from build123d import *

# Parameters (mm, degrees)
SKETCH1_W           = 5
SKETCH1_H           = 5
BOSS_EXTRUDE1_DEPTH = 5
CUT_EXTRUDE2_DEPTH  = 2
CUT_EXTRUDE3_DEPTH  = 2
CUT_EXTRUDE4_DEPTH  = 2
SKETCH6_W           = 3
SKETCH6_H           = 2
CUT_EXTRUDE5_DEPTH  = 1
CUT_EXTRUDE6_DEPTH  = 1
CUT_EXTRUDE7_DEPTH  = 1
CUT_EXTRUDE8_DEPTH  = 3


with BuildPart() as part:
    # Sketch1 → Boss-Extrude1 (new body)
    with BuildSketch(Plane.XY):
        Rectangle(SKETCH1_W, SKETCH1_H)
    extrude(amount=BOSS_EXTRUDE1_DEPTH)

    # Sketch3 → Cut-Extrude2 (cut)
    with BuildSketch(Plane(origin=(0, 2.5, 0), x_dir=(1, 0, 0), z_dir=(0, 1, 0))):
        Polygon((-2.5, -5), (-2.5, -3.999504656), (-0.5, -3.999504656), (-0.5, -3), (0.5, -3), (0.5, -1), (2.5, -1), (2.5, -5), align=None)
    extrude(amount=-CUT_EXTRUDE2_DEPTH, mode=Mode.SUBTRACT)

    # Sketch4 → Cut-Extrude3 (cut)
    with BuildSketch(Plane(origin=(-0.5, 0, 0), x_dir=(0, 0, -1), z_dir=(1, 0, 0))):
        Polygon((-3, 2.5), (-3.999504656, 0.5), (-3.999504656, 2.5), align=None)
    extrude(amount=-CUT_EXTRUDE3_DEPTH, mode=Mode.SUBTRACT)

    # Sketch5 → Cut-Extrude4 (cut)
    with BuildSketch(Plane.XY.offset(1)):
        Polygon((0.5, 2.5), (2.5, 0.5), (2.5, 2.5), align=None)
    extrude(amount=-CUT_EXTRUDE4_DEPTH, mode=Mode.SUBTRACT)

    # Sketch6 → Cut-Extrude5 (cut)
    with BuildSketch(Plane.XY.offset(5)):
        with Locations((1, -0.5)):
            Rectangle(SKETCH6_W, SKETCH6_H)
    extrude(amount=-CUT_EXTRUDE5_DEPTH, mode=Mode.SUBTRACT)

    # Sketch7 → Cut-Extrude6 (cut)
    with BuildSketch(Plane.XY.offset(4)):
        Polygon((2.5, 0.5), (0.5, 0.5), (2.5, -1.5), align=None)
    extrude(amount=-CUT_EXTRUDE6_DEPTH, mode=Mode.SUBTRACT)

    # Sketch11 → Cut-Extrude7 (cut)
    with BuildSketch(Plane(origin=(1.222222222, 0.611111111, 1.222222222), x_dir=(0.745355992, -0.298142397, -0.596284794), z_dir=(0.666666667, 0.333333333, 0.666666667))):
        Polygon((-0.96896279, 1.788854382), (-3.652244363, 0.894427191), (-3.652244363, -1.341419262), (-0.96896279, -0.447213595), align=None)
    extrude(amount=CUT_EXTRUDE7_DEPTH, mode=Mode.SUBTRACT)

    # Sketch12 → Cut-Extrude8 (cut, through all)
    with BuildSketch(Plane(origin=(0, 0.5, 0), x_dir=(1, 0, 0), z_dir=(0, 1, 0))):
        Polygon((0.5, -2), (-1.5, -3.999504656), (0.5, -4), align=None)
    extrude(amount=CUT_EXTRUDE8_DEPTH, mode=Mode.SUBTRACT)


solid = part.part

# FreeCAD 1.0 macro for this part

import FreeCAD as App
import Part
import Sketcher


def add_polygon(sketch, points):
    """Adds a closed chain of lines whose ends are joined by coincident constraints."""
    first, n = sketch.GeometryCount, len(points)
    for a, b in zip(points, points[1:] + points[:1]):
        sketch.addGeometry(Part.LineSegment(App.Vector(*a, 0), App.Vector(*b, 0)), False)
    for i in range(n):
        sketch.addConstraint(Sketcher.Constraint("Coincident", first + i, 2, first + (i + 1) % n, 1))

doc = App.newDocument("Part")
body = doc.addObject("PartDesign::Body", "Body")
body.AllowCompound = True

sketch1 = doc.addObject("Sketcher::SketchObject", "Sketch")
body.addObject(sketch1)
sketch1.AttachmentSupport = (doc.XY_Plane, [""])
sketch1.MapMode = "FlatFace"
add_polygon(sketch1, [(-2.5, 2.5), (-2.5, -2.5), (2.5, -2.5), (2.5, 2.5)])
sketch1.addConstraint(Sketcher.Constraint("Vertical", 0))
sketch1.addConstraint(Sketcher.Constraint("Horizontal", 1))
sketch1.addConstraint(Sketcher.Constraint("Vertical", 2))
sketch1.addConstraint(Sketcher.Constraint("Horizontal", 3))
sketch1.addConstraint(Sketcher.Constraint("Symmetric", 0, 2, 2, 2, -1, 1))
sketch1.addConstraint(Sketcher.Constraint("Equal", 3, 0))
sketch1.addConstraint(Sketcher.Constraint("DistanceX", 1, 1, 1, 2, 5.0))
pad1 = doc.addObject("PartDesign::Pad", "Pad")
body.addObject(pad1)
pad1.Profile = sketch1
pad1.Length = 5

sketch2 = doc.addObject("Sketcher::SketchObject", "Sketch001")
body.addObject(sketch2)
sketch2.AttachmentSupport = (doc.XZ_Plane, [""])
sketch2.MapMode = "FlatFace"
sketch2.AttachmentOffset = App.Placement(App.Vector(0, 0, -2.5), App.Rotation())
add_polygon(sketch2, [(-2.5, 3.999505), (-2.5, 5), (2.5, 5), (2.5, 1), (0.5, 1), (0.5, 3), (-0.5, 3), (-0.5, 3.999505)])
sketch2.addConstraint(Sketcher.Constraint("Vertical", 0))
sketch2.addConstraint(Sketcher.Constraint("Horizontal", 1))
sketch2.addConstraint(Sketcher.Constraint("Vertical", 2))
sketch2.addConstraint(Sketcher.Constraint("Horizontal", 3))
sketch2.addConstraint(Sketcher.Constraint("Vertical", 4))
sketch2.addConstraint(Sketcher.Constraint("Horizontal", 5))
sketch2.addConstraint(Sketcher.Constraint("Vertical", 6))
sketch2.addConstraint(Sketcher.Constraint("Horizontal", 7))
sketch2.addConstraint(Sketcher.Constraint("Equal", 3, 7))
sketch2.addConstraint(Sketcher.Constraint("Equal", 7, 4))
sketch2.addConstraint(Sketcher.Constraint("DistanceX", 1, 1, 1, 2, 5.0))
sketch2.addConstraint(Sketcher.Constraint("DistanceX", 3, 2, 3, 1, 2.0))
sketch2.addConstraint(Sketcher.Constraint("DistanceY", 2, 2, 2, 1, 4.0))
sketch2.addConstraint(Sketcher.Constraint("DistanceY", -1, 1, 0, 2, 5.0))
sketch2.addConstraint(Sketcher.Constraint("DistanceX", 0, 2, -1, 1, 2.5))
sketch2.addConstraint(Sketcher.Constraint("DistanceY", 0, 1, 0, 2, 1.000495))
pocket1 = doc.addObject("PartDesign::Pocket", "Pocket")
body.addObject(pocket1)
pocket1.Profile = sketch2
pocket1.Length = 2
pocket1.Reversed = True

sketch3 = doc.addObject("Sketcher::SketchObject", "Sketch002")
body.addObject(sketch3)
sketch3.AttachmentSupport = (doc.YZ_Plane, [""])
sketch3.MapMode = "FlatFace"
sketch3.AttachmentOffset = App.Placement(App.Vector(0, 0, -0.5), App.Rotation())
add_polygon(sketch3, [(0.5, 3.999505), (2.5, 3), (2.5, 3.999505)])
sketch3.addConstraint(Sketcher.Constraint("Vertical", 1))
sketch3.addConstraint(Sketcher.Constraint("Horizontal", 2))
sketch3.addConstraint(Sketcher.Constraint("DistanceX", 2, 2, 2, 1, 2.0))
sketch3.addConstraint(Sketcher.Constraint("DistanceY", -1, 1, 0, 2, 3.0))
sketch3.addConstraint(Sketcher.Constraint("DistanceX", -1, 1, 0, 2, 2.5))
sketch3.addConstraint(Sketcher.Constraint("DistanceY", 1, 1, 1, 2, 0.999505))
pocket2 = doc.addObject("PartDesign::Pocket", "Pocket001")
body.addObject(pocket2)
pocket2.Profile = sketch3
pocket2.Length = 2

sketch4 = doc.addObject("Sketcher::SketchObject", "Sketch003")
body.addObject(sketch4)
sketch4.AttachmentSupport = (doc.XY_Plane, [""])
sketch4.MapMode = "FlatFace"
sketch4.AttachmentOffset = App.Placement(App.Vector(0, 0, 1), App.Rotation())
add_polygon(sketch4, [(0.5, 2.5), (2.5, 0.5), (2.5, 2.5)])
sketch4.addConstraint(Sketcher.Constraint("Vertical", 1))
sketch4.addConstraint(Sketcher.Constraint("Horizontal", 2))
sketch4.addConstraint(Sketcher.Constraint("Equal", 2, 1))
sketch4.addConstraint(Sketcher.Constraint("DistanceX", 2, 2, 2, 1, 2.0))
sketch4.addConstraint(Sketcher.Constraint("DistanceX", -1, 1, 0, 2, 2.5))
sketch4.addConstraint(Sketcher.Constraint("DistanceY", -1, 1, 0, 2, 0.5))
pocket3 = doc.addObject("PartDesign::Pocket", "Pocket002")
body.addObject(pocket3)
pocket3.Profile = sketch4
pocket3.Length = 2

sketch5 = doc.addObject("Sketcher::SketchObject", "Sketch004")
body.addObject(sketch5)
sketch5.AttachmentSupport = (doc.XY_Plane, [""])
sketch5.MapMode = "FlatFace"
sketch5.AttachmentOffset = App.Placement(App.Vector(0, 0, 5), App.Rotation())
add_polygon(sketch5, [(-0.5, 0.5), (-0.5, -1.5), (2.5, -1.5), (2.5, 0.5)])
sketch5.addConstraint(Sketcher.Constraint("Vertical", 0))
sketch5.addConstraint(Sketcher.Constraint("Horizontal", 1))
sketch5.addConstraint(Sketcher.Constraint("Vertical", 2))
sketch5.addConstraint(Sketcher.Constraint("Horizontal", 3))
sketch5.addConstraint(Sketcher.Constraint("DistanceX", 1, 1, 1, 2, 3.0))
sketch5.addConstraint(Sketcher.Constraint("DistanceY", 0, 2, 0, 1, 2.0))
sketch5.addConstraint(Sketcher.Constraint("DistanceX", 0, 2, -1, 1, 0.5))
sketch5.addConstraint(Sketcher.Constraint("DistanceY", 0, 2, -1, 1, 1.5))
pocket4 = doc.addObject("PartDesign::Pocket", "Pocket003")
body.addObject(pocket4)
pocket4.Profile = sketch5
pocket4.Length = 1

sketch6 = doc.addObject("Sketcher::SketchObject", "Sketch005")
body.addObject(sketch6)
sketch6.AttachmentSupport = (doc.XY_Plane, [""])
sketch6.MapMode = "FlatFace"
sketch6.AttachmentOffset = App.Placement(App.Vector(0, 0, 4), App.Rotation())
add_polygon(sketch6, [(2.5, 0.5), (0.5, 0.5), (2.5, -1.5)])
sketch6.addConstraint(Sketcher.Constraint("Horizontal", 0))
sketch6.addConstraint(Sketcher.Constraint("Vertical", 2))
sketch6.addConstraint(Sketcher.Constraint("Equal", 0, 2))
sketch6.addConstraint(Sketcher.Constraint("DistanceX", 0, 2, 0, 1, 2.0))
sketch6.addConstraint(Sketcher.Constraint("DistanceX", -1, 1, 0, 2, 0.5))
sketch6.addConstraint(Sketcher.Constraint("DistanceY", -1, 1, 0, 2, 0.5))
pocket5 = doc.addObject("PartDesign::Pocket", "Pocket004")
body.addObject(pocket5)
pocket5.Profile = sketch6
pocket5.Length = 1

sketch7 = doc.addObject("Sketcher::SketchObject", "Sketch006")
body.addObject(sketch7)
sketch7.Placement = App.Placement(App.Vector(1.222222, 0.611111, 1.222222), App.Rotation(App.Vector(0.745355992, -0.298142397, -0.596284794), App.Vector(0, 0.894427191, -0.447213595), App.Vector(0.666666667, 0.333333333, 0.666666667), "ZXY"))
add_polygon(sketch7, [(-0.968963, 1.788854), (-3.652244, 0.894427), (-3.652244, -1.341419), (-0.968963, -0.447214)])
sketch7.addConstraint(Sketcher.Constraint("Vertical", 1))
sketch7.addConstraint(Sketcher.Constraint("Vertical", 3))
sketch7.addConstraint(Sketcher.Constraint("DistanceY", 1, 2, 1, 1, 2.235846))
sketch7.addConstraint(Sketcher.Constraint("DistanceY", 3, 1, 3, 2, 2.236068))
sketch7.addConstraint(Sketcher.Constraint("DistanceY", 1, 2, -1, 1, 1.341419))
sketch7.addConstraint(Sketcher.Constraint("DistanceX", 1, 2, 2, 2, 2.683282))
sketch7.addConstraint(Sketcher.Constraint("DistanceY", 2, 2, 0, 2, 1.341641))
sketch7.addConstraint(Sketcher.Constraint("DistanceX", 0, 2, -1, 1, 3.652244))
pocket6 = doc.addObject("PartDesign::Pocket", "Pocket005")
body.addObject(pocket6)
pocket6.Profile = sketch7
pocket6.Length = 1
pocket6.Reversed = True

sketch8 = doc.addObject("Sketcher::SketchObject", "Sketch007")
body.addObject(sketch8)
sketch8.AttachmentSupport = (doc.XZ_Plane, [""])
sketch8.MapMode = "FlatFace"
sketch8.AttachmentOffset = App.Placement(App.Vector(0, 0, -0.5), App.Rotation())
add_polygon(sketch8, [(0.5, 2), (-1.5, 3.999505), (0.5, 4)])
sketch8.addConstraint(Sketcher.Constraint("Vertical", 2))
sketch8.addConstraint(Sketcher.Constraint("DistanceY", 2, 2, 2, 1, 2.0))
sketch8.addConstraint(Sketcher.Constraint("Distance", 1, 2.0))
sketch8.addConstraint(Sketcher.Constraint("DistanceY", -1, 1, 1, 2, 4.0))
sketch8.addConstraint(Sketcher.Constraint("DistanceX", 0, 2, -1, 1, 1.5))
sketch8.addConstraint(Sketcher.Constraint("Distance", 0, 2.828077))
pocket7 = doc.addObject("PartDesign::Pocket", "Pocket006")
body.addObject(pocket7)
pocket7.Profile = sketch8
pocket7.Type = "ThroughAll"

doc.recompute()
